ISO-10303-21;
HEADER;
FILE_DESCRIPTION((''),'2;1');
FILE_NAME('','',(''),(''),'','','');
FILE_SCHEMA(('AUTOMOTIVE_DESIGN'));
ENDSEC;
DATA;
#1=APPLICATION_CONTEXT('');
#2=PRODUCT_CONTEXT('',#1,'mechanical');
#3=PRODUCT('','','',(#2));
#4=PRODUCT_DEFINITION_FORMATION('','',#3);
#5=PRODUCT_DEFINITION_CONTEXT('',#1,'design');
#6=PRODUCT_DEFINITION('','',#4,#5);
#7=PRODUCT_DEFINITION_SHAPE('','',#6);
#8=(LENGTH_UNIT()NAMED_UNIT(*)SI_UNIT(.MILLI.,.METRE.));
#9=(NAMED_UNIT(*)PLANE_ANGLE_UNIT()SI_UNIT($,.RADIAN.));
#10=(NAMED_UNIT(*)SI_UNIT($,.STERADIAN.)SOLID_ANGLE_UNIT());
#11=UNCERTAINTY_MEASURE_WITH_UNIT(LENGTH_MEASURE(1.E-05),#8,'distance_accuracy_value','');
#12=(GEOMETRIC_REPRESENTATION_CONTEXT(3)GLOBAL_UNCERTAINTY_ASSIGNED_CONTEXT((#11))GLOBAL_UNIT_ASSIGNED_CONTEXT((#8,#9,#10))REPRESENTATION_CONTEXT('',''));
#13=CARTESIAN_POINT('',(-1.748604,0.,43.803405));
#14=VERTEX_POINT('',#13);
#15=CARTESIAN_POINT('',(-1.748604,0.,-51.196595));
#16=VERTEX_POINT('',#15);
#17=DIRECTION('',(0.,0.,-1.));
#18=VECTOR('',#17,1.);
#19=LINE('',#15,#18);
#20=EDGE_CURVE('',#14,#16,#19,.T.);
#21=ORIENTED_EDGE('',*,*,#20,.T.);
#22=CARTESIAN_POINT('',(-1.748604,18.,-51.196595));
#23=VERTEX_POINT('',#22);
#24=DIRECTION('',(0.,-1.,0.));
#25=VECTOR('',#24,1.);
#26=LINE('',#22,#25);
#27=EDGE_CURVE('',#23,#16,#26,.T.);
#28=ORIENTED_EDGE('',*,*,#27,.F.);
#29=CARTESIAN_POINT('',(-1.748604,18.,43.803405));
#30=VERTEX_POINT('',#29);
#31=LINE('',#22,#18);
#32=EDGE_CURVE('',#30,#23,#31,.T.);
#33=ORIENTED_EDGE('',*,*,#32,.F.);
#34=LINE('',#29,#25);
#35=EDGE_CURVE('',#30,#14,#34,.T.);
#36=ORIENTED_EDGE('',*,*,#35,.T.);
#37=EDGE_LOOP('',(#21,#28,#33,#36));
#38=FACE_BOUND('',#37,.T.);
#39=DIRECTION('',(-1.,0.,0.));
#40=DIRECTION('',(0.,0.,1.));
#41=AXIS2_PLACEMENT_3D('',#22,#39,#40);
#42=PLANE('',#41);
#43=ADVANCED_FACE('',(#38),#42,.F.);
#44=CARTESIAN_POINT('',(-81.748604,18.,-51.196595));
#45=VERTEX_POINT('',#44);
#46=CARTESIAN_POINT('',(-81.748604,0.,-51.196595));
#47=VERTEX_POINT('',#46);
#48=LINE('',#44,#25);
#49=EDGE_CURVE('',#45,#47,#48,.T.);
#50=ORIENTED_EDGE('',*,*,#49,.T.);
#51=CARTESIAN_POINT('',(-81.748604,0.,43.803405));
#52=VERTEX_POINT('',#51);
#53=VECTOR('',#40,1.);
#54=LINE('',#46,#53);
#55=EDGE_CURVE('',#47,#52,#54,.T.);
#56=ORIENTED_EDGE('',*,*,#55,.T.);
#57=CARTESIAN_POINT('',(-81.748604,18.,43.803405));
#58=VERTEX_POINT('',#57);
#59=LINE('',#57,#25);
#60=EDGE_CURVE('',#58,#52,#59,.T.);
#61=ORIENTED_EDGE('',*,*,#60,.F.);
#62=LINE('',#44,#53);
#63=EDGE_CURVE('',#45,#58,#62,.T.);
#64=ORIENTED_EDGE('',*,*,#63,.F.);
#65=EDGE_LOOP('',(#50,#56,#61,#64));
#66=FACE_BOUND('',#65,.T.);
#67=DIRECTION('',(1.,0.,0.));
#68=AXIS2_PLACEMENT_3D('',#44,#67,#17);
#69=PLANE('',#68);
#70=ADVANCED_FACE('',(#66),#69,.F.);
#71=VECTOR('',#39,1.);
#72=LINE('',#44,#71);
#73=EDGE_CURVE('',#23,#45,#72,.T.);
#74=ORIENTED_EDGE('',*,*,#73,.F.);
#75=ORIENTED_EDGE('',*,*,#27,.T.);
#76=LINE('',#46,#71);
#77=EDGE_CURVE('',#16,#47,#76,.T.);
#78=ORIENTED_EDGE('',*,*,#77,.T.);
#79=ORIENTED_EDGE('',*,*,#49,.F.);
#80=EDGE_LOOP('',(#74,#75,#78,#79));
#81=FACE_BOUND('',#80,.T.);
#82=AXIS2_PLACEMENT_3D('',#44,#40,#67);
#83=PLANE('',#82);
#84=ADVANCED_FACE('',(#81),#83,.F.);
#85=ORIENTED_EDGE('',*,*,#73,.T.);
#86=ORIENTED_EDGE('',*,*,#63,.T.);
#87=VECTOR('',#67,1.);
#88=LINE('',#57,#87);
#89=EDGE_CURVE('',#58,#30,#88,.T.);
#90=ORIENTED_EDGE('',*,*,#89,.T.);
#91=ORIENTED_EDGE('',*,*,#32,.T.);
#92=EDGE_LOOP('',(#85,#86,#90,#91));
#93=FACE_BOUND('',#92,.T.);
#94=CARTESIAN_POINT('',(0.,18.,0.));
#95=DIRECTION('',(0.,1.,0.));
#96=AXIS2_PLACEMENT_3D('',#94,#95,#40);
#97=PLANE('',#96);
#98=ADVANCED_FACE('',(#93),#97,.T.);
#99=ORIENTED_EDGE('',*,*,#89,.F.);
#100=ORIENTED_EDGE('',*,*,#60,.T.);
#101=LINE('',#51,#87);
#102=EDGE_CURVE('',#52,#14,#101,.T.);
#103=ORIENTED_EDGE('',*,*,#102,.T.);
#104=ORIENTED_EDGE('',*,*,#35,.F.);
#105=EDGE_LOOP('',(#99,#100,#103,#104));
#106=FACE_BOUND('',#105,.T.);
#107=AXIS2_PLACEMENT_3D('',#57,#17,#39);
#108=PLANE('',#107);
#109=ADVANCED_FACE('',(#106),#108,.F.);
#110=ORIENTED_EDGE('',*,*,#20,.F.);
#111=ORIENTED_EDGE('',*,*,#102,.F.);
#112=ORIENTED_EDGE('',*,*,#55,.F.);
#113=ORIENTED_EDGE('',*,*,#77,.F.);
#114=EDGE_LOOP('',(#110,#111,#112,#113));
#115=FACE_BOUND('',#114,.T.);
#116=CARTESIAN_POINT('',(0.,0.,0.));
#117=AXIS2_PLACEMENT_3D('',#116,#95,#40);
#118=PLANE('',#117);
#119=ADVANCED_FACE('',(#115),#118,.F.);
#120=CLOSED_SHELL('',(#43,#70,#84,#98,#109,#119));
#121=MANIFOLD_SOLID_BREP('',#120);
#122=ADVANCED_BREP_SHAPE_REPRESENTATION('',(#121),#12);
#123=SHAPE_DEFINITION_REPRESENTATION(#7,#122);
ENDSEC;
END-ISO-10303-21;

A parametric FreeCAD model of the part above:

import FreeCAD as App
import Part
import Sketcher

V = App.Vector

doc = App.newDocument("Part")
body = doc.addObject("PartDesign::Body", "Body")

# Sketch on XZ plane
sketch1 = body.newObject("Sketcher::SketchObject", "Sketch")
sketch1.AttachmentSupport = (doc.getObject("XZ_Plane"), [""])
sketch1.MapMode = "FlatFace"
sketch1.addGeometry([
    Part.LineSegment(V(-82, -51, 0), V(-82, 44, 0)),
    Part.LineSegment(V(-82, 44, 0), V(-2, 44, 0)),
    Part.LineSegment(V(-2, 44, 0), V(-2, -51, 0)),
    Part.LineSegment(V(-2, -51, 0), V(-82, -51, 0)),
], False)
sketch1.addConstraint([
    Sketcher.Constraint("Coincident", 0, 2, 1, 1),
    Sketcher.Constraint("Coincident", 1, 2, 2, 1),
    Sketcher.Constraint("Coincident", 2, 2, 3, 1),
    Sketcher.Constraint("Coincident", 3, 2, 0, 1),
    Sketcher.Constraint("Vertical", 0),
    Sketcher.Constraint("Horizontal", 1),
    Sketcher.Constraint("Vertical", 2),
    Sketcher.Constraint("Horizontal", 3),
    Sketcher.Constraint("DistanceX", 1, 1, 1, 2, 80.0),
    Sketcher.Constraint("DistanceY", 0, 1, 0, 2, 95.0),
    Sketcher.Constraint("DistanceX", 0, 2, -1, 1, 81.748604),
    Sketcher.Constraint("DistanceY", -1, 1, 0, 2, 43.803405),
])
pad1 = body.newObject("PartDesign::Pad", "Pad")
pad1.Profile = sketch1
pad1.Length = 18
pad1.Reversed = True

doc.recompute()
